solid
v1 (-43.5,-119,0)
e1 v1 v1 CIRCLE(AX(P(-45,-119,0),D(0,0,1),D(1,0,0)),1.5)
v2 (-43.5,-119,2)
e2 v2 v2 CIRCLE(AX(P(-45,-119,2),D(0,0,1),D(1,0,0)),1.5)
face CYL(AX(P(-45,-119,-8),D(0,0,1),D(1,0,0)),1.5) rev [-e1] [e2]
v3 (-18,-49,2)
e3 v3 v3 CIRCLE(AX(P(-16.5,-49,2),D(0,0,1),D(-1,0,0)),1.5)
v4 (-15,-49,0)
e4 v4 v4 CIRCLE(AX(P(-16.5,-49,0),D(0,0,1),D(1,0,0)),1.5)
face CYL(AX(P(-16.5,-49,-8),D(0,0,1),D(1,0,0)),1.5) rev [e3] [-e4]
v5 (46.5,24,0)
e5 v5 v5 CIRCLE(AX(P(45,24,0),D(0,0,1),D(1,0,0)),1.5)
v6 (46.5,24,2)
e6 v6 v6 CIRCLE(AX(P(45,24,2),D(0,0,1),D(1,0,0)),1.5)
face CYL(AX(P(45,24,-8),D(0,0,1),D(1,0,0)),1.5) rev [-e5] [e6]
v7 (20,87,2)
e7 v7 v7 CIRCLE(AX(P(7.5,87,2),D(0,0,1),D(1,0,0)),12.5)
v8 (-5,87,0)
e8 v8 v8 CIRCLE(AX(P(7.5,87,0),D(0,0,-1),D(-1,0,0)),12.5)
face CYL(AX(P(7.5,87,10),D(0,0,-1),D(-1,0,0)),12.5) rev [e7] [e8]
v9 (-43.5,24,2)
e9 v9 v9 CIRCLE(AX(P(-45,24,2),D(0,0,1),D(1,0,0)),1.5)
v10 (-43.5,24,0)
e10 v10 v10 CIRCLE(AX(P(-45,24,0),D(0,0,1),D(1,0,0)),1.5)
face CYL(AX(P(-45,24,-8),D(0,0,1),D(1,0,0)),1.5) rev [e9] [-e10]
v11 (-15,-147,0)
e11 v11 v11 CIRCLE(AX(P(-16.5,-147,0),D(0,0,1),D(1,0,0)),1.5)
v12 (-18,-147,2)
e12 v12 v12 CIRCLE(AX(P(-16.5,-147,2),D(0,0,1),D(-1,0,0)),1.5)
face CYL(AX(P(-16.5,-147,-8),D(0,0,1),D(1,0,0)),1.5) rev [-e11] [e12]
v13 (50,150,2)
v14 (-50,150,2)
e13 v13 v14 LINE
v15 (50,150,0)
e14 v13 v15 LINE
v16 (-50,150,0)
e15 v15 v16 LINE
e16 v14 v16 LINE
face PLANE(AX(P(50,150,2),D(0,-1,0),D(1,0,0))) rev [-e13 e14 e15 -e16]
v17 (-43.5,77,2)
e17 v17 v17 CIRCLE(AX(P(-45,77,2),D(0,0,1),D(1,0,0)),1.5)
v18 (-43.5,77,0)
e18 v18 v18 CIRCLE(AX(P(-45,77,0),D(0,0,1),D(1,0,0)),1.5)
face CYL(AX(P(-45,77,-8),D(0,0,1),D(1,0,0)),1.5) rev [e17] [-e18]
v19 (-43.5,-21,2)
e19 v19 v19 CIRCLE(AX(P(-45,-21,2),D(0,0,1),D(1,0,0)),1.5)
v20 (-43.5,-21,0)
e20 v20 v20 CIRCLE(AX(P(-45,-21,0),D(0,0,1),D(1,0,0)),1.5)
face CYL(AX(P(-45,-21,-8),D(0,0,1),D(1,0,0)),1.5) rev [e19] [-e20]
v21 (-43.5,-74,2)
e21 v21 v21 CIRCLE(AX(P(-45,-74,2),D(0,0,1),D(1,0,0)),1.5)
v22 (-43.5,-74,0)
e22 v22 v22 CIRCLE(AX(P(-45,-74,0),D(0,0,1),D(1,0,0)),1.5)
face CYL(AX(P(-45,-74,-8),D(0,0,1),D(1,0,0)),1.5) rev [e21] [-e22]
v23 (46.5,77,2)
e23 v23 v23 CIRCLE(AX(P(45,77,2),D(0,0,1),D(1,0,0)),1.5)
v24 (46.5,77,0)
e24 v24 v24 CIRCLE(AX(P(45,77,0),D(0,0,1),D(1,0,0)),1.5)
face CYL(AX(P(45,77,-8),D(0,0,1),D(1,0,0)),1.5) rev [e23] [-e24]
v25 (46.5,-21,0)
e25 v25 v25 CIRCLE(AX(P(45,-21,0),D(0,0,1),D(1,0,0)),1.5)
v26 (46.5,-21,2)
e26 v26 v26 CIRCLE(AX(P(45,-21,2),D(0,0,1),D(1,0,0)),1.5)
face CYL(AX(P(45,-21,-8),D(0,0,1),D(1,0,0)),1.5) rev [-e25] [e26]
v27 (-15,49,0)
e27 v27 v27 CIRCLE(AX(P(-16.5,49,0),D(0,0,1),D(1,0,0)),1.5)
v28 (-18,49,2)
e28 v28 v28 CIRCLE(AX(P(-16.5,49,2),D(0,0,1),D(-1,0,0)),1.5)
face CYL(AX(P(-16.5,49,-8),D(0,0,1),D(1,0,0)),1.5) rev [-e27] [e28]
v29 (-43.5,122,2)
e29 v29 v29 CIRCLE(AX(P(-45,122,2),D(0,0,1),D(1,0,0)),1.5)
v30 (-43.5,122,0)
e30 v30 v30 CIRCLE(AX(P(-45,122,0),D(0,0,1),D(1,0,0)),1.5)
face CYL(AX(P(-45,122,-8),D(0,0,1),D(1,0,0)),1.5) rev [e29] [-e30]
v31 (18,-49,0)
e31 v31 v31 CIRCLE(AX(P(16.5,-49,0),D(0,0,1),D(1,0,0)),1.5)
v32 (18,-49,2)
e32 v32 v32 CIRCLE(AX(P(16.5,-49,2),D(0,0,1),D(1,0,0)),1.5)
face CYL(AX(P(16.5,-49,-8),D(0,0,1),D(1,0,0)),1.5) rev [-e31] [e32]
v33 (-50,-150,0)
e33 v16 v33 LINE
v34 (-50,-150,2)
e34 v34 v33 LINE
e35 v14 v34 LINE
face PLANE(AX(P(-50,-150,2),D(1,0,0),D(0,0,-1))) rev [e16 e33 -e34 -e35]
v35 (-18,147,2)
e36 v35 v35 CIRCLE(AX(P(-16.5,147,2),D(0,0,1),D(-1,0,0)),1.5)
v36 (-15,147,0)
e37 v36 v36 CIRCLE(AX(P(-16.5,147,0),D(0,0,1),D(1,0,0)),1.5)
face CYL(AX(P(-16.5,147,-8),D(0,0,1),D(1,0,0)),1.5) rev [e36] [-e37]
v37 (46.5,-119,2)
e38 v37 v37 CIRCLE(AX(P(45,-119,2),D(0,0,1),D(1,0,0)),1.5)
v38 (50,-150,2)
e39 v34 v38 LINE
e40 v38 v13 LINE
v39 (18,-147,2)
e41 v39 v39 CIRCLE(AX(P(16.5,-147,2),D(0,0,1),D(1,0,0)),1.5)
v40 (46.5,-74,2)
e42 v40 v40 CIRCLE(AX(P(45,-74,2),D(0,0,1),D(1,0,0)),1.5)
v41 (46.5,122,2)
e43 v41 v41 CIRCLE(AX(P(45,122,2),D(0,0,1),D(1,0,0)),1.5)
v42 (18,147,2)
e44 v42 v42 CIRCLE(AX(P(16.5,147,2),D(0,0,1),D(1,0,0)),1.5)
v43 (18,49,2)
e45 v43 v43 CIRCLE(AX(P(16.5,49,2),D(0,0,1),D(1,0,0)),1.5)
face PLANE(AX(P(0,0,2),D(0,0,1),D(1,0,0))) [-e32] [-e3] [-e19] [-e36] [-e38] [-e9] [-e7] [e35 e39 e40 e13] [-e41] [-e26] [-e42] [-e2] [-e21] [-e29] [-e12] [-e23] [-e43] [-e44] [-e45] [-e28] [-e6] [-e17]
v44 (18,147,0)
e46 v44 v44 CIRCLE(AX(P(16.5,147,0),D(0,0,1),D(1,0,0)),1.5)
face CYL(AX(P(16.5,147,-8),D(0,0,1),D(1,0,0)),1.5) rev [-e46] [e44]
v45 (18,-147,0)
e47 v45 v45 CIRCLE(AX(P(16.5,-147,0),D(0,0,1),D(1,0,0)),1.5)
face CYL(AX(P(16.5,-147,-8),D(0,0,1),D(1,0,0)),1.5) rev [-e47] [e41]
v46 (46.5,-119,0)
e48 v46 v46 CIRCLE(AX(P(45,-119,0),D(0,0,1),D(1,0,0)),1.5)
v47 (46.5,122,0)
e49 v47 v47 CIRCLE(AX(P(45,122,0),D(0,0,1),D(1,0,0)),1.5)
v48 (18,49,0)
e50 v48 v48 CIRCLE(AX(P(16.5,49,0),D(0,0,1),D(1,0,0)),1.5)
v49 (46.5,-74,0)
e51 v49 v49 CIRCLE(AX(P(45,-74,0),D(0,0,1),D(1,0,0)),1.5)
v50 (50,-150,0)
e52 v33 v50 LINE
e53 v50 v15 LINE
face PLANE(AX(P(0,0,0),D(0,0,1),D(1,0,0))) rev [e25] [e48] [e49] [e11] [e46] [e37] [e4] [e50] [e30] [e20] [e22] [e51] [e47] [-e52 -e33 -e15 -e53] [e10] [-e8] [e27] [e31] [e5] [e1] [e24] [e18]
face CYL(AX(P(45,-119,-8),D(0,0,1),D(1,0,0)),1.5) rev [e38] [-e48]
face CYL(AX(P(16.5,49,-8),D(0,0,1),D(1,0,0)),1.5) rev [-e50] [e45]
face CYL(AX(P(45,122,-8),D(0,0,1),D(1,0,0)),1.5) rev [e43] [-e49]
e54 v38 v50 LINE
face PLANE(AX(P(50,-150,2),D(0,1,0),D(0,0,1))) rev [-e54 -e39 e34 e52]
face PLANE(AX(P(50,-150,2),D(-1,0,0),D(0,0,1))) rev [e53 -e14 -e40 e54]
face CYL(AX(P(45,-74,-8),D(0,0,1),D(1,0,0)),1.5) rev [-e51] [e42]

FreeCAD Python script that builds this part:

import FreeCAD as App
import Part
import Sketcher

V = App.Vector


def add_polygon(sketch, points):
    """Adds a closed chain of lines whose ends are joined by coincident constraints."""
    first, n = sketch.GeometryCount, len(points)
    for a, b in zip(points, points[1:] + points[:1]):
        sketch.addGeometry(Part.LineSegment(App.Vector(*a, 0), App.Vector(*b, 0)), False)
    for i in range(n):
        sketch.addConstraint(Sketcher.Constraint("Coincident", first + i, 2, first + (i + 1) % n, 1))

doc = App.newDocument("Part")
body = doc.addObject("PartDesign::Body", "Body")

sketch1 = doc.addObject("Sketcher::SketchObject", "Sketch")
body.addObject(sketch1)
sketch1.AttachmentSupport = (doc.XY_Plane, [""])
sketch1.MapMode = "FlatFace"
add_polygon(sketch1, [(-50, 150), (-50, -150), (50, -150), (50, 150)])
sketch1.addConstraint([
    Sketcher.Constraint("Vertical", 0),
    Sketcher.Constraint("Horizontal", 1),
    Sketcher.Constraint("Vertical", 2),
    Sketcher.Constraint("Horizontal", 3),
    Sketcher.Constraint("Symmetric", 0, 2, 2, 2, -1, 1),
    Sketcher.Constraint("DistanceX", 1, 1, 1, 2, 100.0),
    Sketcher.Constraint("DistanceY", 0, 2, 0, 1, 300.0),
])
pad1 = doc.addObject("PartDesign::Pad", "Pad")
body.addObject(pad1)
pad1.Profile = sketch1
pad1.Length = 2

sketch2 = doc.addObject("Sketcher::SketchObject", "Sketch001")
body.addObject(sketch2)
sketch2.AttachmentSupport = (doc.XY_Plane, [""])
sketch2.MapMode = "FlatFace"
sketch2.AttachmentOffset = App.Placement(V(0, 0, 2), App.Rotation())
sketch2.addGeometry([
    Part.Circle(V(-45, 122, 0), V(0, 0, 1), 1.5),
    Part.Circle(V(-45, 77, 0), V(0, 0, 1), 1.5),
    Part.Circle(V(45, 122, 0), V(0, 0, 1), 1.5),
    Part.Circle(V(45, 77, 0), V(0, 0, 1), 1.5),
    Part.Circle(V(-45, 24, 0), V(0, 0, 1), 1.5),
    Part.Circle(V(-45, -21, 0), V(0, 0, 1), 1.5),
    Part.Circle(V(45, 24, 0), V(0, 0, 1), 1.5),
    Part.Circle(V(45, -21, 0), V(0, 0, 1), 1.5),
    Part.Circle(V(-45, -74, 0), V(0, 0, 1), 1.5),
    Part.Circle(V(-45, -119, 0), V(0, 0, 1), 1.5),
    Part.Circle(V(45, -74, 0), V(0, 0, 1), 1.5),
    Part.Circle(V(45, -119, 0), V(0, 0, 1), 1.5),
    Part.Circle(V(16.5, -147, 0), V(0, 0, 1), 1.5),
    Part.Circle(V(-16.5, -147, 0), V(0, 0, 1), 1.5),
    Part.Circle(V(-16.5, -49, 0), V(0, 0, 1), 1.5),
    Part.Circle(V(16.5, -49, 0), V(0, 0, 1), 1.5),
    Part.Circle(V(-16.5, 49, 0), V(0, 0, 1), 1.5),
    Part.Circle(V(16.5, 49, 0), V(0, 0, 1), 1.5),
    Part.Circle(V(-16.5, 147, 0), V(0, 0, 1), 1.5),
    Part.Circle(V(16.5, 147, 0), V(0, 0, 1), 1.5),
], False)
sketch2.addConstraint([
    Sketcher.Constraint("Equal", 0, 1),
    Sketcher.Constraint("Equal", 1, 2),
    Sketcher.Constraint("Equal", 2, 3),
    Sketcher.Constraint("Equal", 3, 4),
    Sketcher.Constraint("Equal", 4, 5),
    Sketcher.Constraint("Equal", 5, 6),
    Sketcher.Constraint("Equal", 6, 7),
    Sketcher.Constraint("Equal", 7, 8),
    Sketcher.Constraint("Equal", 8, 9),
    Sketcher.Constraint("Equal", 9, 10),
    Sketcher.Constraint("Equal", 10, 11),
    Sketcher.Constraint("Equal", 11, 12),
    Sketcher.Constraint("Equal", 12, 13),
    Sketcher.Constraint("Equal", 13, 14),
    Sketcher.Constraint("Equal", 14, 15),
    Sketcher.Constraint("Equal", 15, 16),
    Sketcher.Constraint("Equal", 16, 17),
    Sketcher.Constraint("Equal", 17, 18),
    Sketcher.Constraint("Equal", 18, 19),
    Sketcher.Constraint("Symmetric", 15, 3, 16, 3, -1, 1),
    Sketcher.Constraint("Symmetric", 14, 3, 17, 3, -1, 1),
    Sketcher.Constraint("Symmetric", 12, 3, 18, 3, -1, 1),
    Sketcher.Constraint("Symmetric", 13, 3, 19, 3, -1, 1),
    Sketcher.Constraint("Symmetric", 0, 3, 2, 3, -2),
    Sketcher.Constraint("Symmetric", 1, 3, 3, 3, -2),
    Sketcher.Constraint("Symmetric", 4, 3, 6, 3, -2),
    Sketcher.Constraint("Symmetric", 5, 3, 7, 3, -2),
    Sketcher.Constraint("Symmetric", 8, 3, 10, 3, -2),
    Sketcher.Constraint("Symmetric", 9, 3, 11, 3, -2),
    Sketcher.Constraint("Symmetric", 12, 3, 13, 3, -2),
    Sketcher.Constraint("Symmetric", 14, 3, 15, 3, -2),
    Sketcher.Constraint("Vertical", 0, 3, 1, 3),
    Sketcher.Constraint("Vertical", 1, 3, 4, 3),
    Sketcher.Constraint("Vertical", 4, 3, 5, 3),
    Sketcher.Constraint("Vertical", 5, 3, 8, 3),
    Sketcher.Constraint("Vertical", 8, 3, 9, 3),
    Sketcher.Constraint("Vertical", 13, 3, 14, 3),
    Sketcher.Constraint("Diameter", 0, 3.0),
    Sketcher.Constraint("DistanceX", 0, 3, -1, 1, 45.0),
    Sketcher.Constraint("DistanceY", -1, 1, 0, 3, 122.0),
    Sketcher.Constraint("DistanceY", -1, 1, 1, 3, 77.0),
    Sketcher.Constraint("DistanceY", -1, 1, 4, 3, 24.0),
    Sketcher.Constraint("DistanceY", 5, 3, -1, 1, 21.0),
    Sketcher.Constraint("DistanceY", 8, 3, -1, 1, 74.0),
    Sketcher.Constraint("DistanceY", 9, 3, -1, 1, 119.0),
    Sketcher.Constraint("DistanceY", 12, 3, -1, 1, 147.0),
    Sketcher.Constraint("DistanceY", 14, 3, -1, 1, 49.0),
    Sketcher.Constraint("DistanceX", 13, 3, 12, 3, 33.0),
])
pocket1 = doc.addObject("PartDesign::Pocket", "Pocket")
body.addObject(pocket1)
pocket1.Profile = sketch2
pocket1.Length = 10

sketch3 = doc.addObject("Sketcher::SketchObject", "Sketch002")
body.addObject(sketch3)
sketch3.AttachmentSupport = (doc.XY_Plane, [""])
sketch3.MapMode = "FlatFace"
sketch3.addGeometry(Part.Circle(V(8, 87, 0), V(0, 0, 1), 12), False)
sketch3.addConstraint([
    Sketcher.Constraint("Diameter", 0, 25.0),
    Sketcher.Constraint("DistanceY", -1, 1, 0, 3, 87.0),
    Sketcher.Constraint("DistanceX", -1, 1, 0, 3, 7.5),
])
pocket2 = doc.addObject("PartDesign::Pocket", "Pocket001")
body.addObject(pocket2)
pocket2.Profile = sketch3
pocket2.Length = 10
pocket2.Reversed = True

doc.recompute()
